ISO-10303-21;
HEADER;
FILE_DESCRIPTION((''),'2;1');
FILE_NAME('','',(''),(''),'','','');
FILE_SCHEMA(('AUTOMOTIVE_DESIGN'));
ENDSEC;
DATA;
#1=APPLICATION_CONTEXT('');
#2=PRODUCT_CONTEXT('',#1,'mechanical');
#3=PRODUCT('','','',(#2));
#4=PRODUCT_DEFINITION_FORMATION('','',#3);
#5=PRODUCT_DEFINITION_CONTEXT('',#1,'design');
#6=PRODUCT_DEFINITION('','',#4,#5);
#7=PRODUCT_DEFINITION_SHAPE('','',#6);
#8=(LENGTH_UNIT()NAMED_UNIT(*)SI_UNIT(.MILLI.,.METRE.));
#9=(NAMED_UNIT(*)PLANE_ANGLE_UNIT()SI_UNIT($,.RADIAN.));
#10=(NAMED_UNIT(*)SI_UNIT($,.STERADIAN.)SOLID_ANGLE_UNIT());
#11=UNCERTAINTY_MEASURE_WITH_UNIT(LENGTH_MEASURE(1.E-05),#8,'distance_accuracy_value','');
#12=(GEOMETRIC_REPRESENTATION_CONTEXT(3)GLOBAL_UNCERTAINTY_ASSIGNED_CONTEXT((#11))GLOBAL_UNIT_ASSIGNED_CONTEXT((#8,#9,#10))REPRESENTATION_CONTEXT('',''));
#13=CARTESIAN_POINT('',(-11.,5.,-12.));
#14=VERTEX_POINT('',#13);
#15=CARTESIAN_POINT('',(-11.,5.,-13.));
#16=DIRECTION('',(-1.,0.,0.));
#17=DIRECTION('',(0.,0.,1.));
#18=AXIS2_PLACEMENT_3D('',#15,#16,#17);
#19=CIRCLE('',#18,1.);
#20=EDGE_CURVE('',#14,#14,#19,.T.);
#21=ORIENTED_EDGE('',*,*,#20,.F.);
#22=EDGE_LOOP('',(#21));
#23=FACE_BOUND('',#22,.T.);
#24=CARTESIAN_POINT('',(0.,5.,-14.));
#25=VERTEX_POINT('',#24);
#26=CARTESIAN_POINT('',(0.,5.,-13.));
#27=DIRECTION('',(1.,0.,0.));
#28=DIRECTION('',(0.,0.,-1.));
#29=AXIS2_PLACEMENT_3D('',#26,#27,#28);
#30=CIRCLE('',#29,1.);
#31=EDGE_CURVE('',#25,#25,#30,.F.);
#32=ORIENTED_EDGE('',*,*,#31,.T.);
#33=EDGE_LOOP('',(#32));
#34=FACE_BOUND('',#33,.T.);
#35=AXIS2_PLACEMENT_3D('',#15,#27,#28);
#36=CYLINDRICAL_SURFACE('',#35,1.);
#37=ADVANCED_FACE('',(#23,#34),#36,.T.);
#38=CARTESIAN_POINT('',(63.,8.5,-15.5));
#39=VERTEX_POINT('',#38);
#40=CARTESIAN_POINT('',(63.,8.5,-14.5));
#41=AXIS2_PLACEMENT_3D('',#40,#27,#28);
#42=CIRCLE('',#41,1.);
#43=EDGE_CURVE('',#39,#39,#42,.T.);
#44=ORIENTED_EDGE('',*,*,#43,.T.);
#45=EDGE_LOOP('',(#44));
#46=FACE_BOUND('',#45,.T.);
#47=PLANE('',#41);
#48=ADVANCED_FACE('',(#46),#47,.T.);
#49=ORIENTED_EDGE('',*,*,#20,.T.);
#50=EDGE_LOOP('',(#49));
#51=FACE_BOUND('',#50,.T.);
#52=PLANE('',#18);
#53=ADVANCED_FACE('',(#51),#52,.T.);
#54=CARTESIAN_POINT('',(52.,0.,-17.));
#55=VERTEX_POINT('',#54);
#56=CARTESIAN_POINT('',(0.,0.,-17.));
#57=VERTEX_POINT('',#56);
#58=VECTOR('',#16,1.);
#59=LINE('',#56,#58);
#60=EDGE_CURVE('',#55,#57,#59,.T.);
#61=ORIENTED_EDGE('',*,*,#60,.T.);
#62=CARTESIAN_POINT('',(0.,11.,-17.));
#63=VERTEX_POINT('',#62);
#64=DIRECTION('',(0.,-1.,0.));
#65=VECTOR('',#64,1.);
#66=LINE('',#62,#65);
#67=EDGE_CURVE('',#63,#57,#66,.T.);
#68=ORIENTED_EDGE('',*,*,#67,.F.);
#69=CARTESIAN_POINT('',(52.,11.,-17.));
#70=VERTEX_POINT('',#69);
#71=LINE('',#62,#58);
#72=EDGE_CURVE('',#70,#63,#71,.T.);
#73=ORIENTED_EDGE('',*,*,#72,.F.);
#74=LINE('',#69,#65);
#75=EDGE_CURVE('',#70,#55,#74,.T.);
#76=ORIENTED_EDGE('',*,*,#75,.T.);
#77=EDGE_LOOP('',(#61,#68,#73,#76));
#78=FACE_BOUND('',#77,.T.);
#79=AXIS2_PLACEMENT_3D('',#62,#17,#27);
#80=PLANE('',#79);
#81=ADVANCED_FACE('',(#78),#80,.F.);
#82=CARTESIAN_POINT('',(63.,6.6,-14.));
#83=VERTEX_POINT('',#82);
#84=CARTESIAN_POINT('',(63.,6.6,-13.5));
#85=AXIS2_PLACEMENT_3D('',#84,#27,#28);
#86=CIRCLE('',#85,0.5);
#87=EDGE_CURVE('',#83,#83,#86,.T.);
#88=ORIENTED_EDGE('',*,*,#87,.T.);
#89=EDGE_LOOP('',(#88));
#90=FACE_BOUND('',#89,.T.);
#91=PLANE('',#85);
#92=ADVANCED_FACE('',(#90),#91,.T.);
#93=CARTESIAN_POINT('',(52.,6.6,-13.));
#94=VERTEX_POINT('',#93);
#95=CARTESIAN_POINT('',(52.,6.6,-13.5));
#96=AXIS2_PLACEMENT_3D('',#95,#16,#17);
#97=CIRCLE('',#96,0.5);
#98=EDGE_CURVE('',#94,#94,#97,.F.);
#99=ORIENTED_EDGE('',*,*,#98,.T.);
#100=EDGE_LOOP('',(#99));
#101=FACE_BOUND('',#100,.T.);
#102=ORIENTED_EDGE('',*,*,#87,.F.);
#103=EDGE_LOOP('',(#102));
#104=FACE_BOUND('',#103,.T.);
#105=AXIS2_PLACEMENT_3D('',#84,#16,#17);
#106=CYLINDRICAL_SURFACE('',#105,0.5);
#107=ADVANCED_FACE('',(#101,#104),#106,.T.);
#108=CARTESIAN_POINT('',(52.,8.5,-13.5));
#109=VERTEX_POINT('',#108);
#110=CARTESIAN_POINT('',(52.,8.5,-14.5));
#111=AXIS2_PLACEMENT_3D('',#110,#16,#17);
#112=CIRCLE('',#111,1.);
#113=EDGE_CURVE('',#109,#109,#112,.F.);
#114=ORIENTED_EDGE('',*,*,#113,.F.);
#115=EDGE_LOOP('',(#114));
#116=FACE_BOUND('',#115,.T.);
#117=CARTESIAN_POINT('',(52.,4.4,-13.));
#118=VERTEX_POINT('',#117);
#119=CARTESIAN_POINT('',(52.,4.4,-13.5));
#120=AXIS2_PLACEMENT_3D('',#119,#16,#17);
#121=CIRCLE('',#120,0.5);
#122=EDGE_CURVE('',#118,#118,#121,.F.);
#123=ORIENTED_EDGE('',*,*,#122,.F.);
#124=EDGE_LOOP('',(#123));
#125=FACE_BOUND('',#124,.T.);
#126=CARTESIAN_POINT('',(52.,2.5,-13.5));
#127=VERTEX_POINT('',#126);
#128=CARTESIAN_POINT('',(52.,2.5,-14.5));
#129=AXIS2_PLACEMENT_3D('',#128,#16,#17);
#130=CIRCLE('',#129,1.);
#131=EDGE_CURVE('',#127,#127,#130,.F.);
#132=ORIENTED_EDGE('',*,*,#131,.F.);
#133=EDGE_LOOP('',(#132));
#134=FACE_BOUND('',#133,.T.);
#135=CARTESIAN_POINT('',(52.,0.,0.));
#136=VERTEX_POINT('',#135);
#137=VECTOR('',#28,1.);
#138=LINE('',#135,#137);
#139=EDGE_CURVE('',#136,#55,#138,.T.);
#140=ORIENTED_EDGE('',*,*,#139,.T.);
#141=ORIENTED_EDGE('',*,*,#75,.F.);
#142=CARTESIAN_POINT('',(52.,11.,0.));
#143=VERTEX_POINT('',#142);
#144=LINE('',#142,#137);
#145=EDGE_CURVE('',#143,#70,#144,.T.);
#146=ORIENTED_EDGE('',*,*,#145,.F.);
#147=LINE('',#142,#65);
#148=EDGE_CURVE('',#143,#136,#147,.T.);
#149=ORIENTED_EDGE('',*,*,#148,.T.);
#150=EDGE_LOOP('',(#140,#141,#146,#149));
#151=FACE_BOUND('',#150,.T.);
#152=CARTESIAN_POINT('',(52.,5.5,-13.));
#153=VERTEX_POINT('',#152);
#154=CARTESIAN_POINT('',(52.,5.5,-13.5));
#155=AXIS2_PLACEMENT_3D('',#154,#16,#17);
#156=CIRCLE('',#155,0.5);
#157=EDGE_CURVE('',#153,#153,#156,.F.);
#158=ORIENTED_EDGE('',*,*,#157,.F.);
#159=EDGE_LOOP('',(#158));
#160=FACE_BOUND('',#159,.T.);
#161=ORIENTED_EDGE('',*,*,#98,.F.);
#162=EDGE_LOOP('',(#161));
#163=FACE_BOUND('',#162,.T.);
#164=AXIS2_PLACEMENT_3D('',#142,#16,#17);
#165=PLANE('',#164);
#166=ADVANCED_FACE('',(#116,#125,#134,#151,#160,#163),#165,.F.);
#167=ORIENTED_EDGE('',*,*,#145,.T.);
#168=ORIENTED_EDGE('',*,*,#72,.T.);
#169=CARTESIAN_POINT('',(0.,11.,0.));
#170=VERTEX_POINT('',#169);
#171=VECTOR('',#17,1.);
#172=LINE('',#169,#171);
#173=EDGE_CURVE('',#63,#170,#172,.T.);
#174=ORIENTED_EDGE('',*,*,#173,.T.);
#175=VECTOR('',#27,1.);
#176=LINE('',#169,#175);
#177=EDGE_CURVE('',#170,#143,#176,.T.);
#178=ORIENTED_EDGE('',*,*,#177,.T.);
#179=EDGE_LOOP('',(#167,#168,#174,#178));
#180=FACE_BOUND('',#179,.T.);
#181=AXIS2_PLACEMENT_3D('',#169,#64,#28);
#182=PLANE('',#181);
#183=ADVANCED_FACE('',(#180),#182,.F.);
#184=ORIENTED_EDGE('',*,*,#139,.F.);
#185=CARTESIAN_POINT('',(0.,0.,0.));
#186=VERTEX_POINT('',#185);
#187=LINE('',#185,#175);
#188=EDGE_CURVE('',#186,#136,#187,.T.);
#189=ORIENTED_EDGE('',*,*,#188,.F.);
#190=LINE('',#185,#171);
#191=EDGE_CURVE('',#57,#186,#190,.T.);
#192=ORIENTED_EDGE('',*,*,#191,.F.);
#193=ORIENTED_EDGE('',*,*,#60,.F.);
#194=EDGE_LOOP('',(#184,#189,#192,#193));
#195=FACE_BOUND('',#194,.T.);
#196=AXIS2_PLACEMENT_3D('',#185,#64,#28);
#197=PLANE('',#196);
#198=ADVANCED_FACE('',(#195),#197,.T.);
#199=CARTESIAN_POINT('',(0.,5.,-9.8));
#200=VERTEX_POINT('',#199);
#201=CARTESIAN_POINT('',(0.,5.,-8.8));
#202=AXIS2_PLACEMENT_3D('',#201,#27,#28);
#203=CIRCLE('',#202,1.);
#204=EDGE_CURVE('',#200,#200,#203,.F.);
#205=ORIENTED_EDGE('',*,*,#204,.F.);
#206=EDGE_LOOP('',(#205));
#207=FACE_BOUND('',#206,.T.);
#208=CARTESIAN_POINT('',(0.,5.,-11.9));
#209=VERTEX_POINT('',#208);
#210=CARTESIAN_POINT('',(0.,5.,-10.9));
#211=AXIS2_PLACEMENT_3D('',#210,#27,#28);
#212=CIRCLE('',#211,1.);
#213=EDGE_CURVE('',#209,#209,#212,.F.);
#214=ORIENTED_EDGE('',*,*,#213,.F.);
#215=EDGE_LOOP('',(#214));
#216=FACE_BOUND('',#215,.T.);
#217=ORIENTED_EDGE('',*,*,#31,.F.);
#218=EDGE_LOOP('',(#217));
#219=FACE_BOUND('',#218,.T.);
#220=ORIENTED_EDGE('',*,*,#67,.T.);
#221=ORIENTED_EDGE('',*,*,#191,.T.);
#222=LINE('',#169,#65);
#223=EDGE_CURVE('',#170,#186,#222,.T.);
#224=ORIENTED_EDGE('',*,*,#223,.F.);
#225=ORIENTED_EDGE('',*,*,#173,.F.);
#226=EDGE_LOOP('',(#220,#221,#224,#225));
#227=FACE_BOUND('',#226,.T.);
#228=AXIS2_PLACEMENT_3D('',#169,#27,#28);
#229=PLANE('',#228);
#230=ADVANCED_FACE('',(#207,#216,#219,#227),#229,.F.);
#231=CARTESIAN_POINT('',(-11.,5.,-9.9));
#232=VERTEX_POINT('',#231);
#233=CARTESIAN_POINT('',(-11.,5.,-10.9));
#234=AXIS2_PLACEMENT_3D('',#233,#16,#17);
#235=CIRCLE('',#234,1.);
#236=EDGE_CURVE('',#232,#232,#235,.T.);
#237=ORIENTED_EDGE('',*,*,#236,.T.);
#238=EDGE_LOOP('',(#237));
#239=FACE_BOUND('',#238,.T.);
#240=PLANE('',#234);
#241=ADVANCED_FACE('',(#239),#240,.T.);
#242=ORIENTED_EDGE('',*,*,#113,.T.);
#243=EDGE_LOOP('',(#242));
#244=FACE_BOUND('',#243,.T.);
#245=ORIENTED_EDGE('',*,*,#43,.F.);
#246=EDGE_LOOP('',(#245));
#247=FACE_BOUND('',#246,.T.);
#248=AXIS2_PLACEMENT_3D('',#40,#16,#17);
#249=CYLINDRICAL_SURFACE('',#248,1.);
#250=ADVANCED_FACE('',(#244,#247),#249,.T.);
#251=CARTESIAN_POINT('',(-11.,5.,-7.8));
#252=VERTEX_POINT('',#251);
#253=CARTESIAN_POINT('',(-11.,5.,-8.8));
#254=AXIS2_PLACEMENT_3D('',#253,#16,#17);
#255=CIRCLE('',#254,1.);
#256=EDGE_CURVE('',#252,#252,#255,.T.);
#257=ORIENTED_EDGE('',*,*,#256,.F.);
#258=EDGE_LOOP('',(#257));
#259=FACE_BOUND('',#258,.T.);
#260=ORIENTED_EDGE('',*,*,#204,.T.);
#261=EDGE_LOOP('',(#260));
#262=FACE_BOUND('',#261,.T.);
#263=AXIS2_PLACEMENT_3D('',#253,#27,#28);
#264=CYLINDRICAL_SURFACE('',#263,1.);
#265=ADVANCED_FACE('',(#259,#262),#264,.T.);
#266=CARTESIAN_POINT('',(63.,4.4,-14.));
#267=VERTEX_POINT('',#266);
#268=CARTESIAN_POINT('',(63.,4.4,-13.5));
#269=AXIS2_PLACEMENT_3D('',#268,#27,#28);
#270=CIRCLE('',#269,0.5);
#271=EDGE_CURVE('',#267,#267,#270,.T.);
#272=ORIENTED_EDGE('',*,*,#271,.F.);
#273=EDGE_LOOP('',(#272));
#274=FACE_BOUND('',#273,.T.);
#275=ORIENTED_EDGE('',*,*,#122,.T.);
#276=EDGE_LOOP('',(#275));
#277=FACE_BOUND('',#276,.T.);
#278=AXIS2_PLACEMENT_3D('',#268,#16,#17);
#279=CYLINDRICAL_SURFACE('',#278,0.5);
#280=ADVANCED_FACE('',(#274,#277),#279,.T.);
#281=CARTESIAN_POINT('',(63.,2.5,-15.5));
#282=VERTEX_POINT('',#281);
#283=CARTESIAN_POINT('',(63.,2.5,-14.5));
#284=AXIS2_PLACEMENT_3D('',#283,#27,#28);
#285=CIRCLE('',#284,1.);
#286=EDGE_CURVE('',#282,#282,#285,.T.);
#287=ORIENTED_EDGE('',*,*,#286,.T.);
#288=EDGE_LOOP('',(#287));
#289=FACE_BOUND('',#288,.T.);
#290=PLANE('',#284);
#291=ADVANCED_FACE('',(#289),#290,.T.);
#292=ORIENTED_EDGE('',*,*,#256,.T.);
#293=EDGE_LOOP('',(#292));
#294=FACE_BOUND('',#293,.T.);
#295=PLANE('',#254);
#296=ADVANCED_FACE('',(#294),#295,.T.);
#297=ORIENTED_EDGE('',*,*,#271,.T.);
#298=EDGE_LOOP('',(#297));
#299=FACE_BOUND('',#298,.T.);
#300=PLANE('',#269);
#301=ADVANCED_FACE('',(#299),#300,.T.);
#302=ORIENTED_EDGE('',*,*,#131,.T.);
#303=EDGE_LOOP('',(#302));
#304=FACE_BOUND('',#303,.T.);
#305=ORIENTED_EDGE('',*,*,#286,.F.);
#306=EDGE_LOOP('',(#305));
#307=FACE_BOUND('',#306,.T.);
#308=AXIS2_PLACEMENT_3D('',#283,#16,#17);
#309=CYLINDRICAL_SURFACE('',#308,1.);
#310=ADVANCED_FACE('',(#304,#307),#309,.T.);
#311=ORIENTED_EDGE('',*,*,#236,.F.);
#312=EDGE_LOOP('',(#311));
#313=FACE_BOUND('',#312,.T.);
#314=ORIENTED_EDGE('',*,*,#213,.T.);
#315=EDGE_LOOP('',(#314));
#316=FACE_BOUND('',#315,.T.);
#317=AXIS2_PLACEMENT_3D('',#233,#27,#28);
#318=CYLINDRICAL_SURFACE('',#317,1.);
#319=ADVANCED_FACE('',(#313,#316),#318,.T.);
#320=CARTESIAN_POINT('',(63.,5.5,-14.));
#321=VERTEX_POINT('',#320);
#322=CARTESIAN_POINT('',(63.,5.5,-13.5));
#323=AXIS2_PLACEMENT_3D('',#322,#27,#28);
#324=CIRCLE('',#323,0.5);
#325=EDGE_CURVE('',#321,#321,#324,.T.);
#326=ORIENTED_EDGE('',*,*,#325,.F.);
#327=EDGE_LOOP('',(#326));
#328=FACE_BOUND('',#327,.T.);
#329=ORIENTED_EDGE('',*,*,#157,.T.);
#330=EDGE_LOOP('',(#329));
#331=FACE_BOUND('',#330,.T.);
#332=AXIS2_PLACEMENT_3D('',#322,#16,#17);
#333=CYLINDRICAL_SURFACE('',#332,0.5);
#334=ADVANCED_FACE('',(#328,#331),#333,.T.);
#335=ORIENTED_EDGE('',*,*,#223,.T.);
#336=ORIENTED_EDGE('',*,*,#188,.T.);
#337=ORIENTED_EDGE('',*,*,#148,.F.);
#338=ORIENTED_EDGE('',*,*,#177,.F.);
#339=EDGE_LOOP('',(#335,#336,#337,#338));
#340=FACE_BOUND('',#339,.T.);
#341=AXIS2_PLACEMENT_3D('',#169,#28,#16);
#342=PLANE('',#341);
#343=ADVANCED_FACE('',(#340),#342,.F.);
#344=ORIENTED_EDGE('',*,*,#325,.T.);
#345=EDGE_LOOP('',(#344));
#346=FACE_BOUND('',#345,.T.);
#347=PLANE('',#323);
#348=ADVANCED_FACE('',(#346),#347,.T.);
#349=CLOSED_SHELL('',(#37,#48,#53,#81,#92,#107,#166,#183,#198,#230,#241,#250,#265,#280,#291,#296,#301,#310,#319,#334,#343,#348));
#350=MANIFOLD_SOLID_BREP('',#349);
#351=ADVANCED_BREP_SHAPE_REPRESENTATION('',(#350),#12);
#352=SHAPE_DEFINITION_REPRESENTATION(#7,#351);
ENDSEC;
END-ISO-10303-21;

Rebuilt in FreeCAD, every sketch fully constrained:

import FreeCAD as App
import Part
import Sketcher
Q = App.Units.Quantity


def add_polygon(sketch, points):
    """Adds a closed chain of lines whose ends are joined by coincident constraints."""
    first, n = sketch.GeometryCount, len(points)
    for a, b in zip(points, points[1:] + points[:1]):
        sketch.addGeometry(Part.LineSegment(App.Vector(*a, 0), App.Vector(*b, 0)), False)
    for i in range(n):
        sketch.addConstraint(Sketcher.Constraint("Coincident", first + i, 2, first + (i + 1) % n, 1))

doc = App.newDocument("Part")
body = doc.addObject("PartDesign::Body", "Body")

# Sketch on XZ plane
sketch1 = body.newObject("Sketcher::SketchObject", "Sketch")
sketch1.AttachmentSupport = (doc.getObject("XZ_Plane"), [""])
sketch1.MapMode = "FlatFace"
add_polygon(sketch1, [(0, -17), (0, 0), (52, 0), (52, -17)])  # lines 0-3
sketch1.addConstraint([
    Sketcher.Constraint("Vertical", 0),
    Sketcher.Constraint("Horizontal", 1),
    Sketcher.Constraint("Vertical", 2),
    Sketcher.Constraint("Horizontal", 3),
    Sketcher.Constraint("Coincident", 0, 2, -1, 1),
    Sketcher.Constraint("DistanceX", 1, 1, 1, 2, Q("52 mm")),
    Sketcher.Constraint("DistanceY", 0, 1, 0, 2, Q("17 mm")),
])
pad1 = body.newObject("PartDesign::Pad", "Pad")
pad1.Profile = sketch1
pad1.Length = 11
pad1.Reversed = True

# Sketch on YZ plane
sketch2 = body.newObject("Sketcher::SketchObject", "Sketch001")
sketch2.AttachmentSupport = (doc.getObject("YZ_Plane"), [""])
sketch2.MapMode = "FlatFace"
sketch2.addGeometry([
    Part.Circle(App.Vector(5, -13, 0), App.Vector(0, 0, 1), 1),
    Part.Circle(App.Vector(5, -10.9, 0), App.Vector(0, 0, 1), 1),
    Part.Circle(App.Vector(5, -8.8, 0), App.Vector(0, 0, 1), 1),
], False)
sketch2.addConstraint([
    Sketcher.Constraint("Equal", 0, 1),
    Sketcher.Constraint("Equal", 1, 2),
    Sketcher.Constraint("Vertical", 0, 3, 1, 3),
    Sketcher.Constraint("Vertical", 1, 3, 2, 3),
    Sketcher.Constraint("Diameter", 0, Q("2 mm")),
    Sketcher.Constraint("DistanceX", -1, 1, 0, 3, Q("5 mm")),
    Sketcher.Constraint("DistanceY", 0, 3, -1, 1, Q("13 mm")),
    Sketcher.Constraint("DistanceY", 1, 3, -1, 1, Q("10.9 mm")),
    Sketcher.Constraint("DistanceY", 2, 3, -1, 1, Q("8.8 mm")),
])
pad2 = body.newObject("PartDesign::Pad", "Pad001")
pad2.Profile = sketch2
pad2.Length = 11
pad2.Reversed = True

# Sketch on YZ plane
sketch3 = body.newObject("Sketcher::SketchObject", "Sketch002")
sketch3.AttachmentSupport = (doc.getObject("YZ_Plane"), [""])
sketch3.MapMode = "FlatFace"
sketch3.AttachmentOffset = App.Placement(App.Vector(0, 0, 52), App.Rotation())
sketch3.addGeometry([
    Part.Circle(App.Vector(8.5, -14.5, 0), App.Vector(0, 0, 1), 1),  # 0
    Part.Circle(App.Vector(2.5, -14.5, 0), App.Vector(0, 0, 1), 1),  # 1
    Part.Circle(App.Vector(6.6, -13.5, 0), App.Vector(0, 0, 1), 0.5),  # 2
    Part.Circle(App.Vector(5.5, -13.5, 0), App.Vector(0, 0, 1), 0.5),  # 3
    Part.Circle(App.Vector(4.4, -13.5, 0), App.Vector(0, 0, 1), 0.5),  # 4
], False)
sketch3.addConstraint([
    Sketcher.Constraint("Equal", 0, 1),
    Sketcher.Constraint("Equal", 2, 3),
    Sketcher.Constraint("Equal", 3, 4),
    Sketcher.Constraint("Horizontal", 0, 3, 1, 3),
    Sketcher.Constraint("Horizontal", 2, 3, 3, 3),
    Sketcher.Constraint("Horizontal", 3, 3, 4, 3),
    Sketcher.Constraint("Diameter", 0, Q("2 mm")),
    Sketcher.Constraint("Diameter", 2, Q("1 mm")),
    Sketcher.Constraint("DistanceX", 1, 3, 0, 3, Q("6 mm")),
    Sketcher.Constraint("DistanceY", 0, 3, 2, 3, Q("1 mm")),
    Sketcher.Constraint("DistanceX", 3, 3, 0, 3, Q("3 mm")),
    Sketcher.Constraint("DistanceX", -1, 1, 0, 3, Q("8.5 mm")),
    Sketcher.Constraint("DistanceY", 0, 3, -1, 1, Q("14.5 mm")),
    Sketcher.Constraint("DistanceX", -1, 1, 2, 3, Q("6.6 mm")),
    Sketcher.Constraint("DistanceX", -1, 1, 4, 3, Q("4.4 mm")),
])
pad3 = body.newObject("PartDesign::Pad", "Pad002")
pad3.Profile = sketch3
pad3.Length = 11

doc.recompute()
